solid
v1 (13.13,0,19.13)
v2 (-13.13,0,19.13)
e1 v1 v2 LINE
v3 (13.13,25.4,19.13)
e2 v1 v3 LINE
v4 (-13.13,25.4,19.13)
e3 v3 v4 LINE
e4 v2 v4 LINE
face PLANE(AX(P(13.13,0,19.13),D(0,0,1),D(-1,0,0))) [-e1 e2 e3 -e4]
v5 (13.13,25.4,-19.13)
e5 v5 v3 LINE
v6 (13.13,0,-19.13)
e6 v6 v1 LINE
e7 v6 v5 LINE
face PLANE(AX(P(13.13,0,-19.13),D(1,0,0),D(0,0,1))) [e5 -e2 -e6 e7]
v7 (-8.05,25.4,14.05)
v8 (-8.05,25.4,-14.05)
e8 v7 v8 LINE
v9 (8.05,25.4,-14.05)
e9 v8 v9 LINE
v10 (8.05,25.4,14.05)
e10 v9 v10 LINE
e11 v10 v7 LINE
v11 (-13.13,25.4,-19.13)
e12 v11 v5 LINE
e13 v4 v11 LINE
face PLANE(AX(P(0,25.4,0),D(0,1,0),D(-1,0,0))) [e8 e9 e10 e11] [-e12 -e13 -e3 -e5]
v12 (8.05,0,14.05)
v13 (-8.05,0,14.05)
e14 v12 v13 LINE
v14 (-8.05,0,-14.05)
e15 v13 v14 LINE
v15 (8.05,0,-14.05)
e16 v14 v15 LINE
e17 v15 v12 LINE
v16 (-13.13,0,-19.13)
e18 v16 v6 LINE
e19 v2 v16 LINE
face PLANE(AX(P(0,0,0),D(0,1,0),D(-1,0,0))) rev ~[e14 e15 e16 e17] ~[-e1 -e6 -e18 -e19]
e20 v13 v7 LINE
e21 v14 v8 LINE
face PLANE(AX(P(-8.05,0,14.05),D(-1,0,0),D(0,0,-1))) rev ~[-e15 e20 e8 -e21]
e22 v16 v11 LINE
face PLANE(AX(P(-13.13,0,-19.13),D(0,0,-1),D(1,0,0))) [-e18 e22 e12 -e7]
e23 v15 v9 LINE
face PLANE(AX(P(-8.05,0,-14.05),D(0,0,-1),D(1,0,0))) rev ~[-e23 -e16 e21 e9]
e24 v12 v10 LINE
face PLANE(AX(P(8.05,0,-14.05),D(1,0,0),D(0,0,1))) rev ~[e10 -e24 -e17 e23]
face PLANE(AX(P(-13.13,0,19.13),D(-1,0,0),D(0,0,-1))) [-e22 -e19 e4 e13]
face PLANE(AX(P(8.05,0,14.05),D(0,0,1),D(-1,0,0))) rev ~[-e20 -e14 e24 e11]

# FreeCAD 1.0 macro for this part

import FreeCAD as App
import Part
import Sketcher

V = App.Vector
Q = App.Units.Quantity


def add_polygon(sketch, points):
    """Adds a closed chain of lines whose ends are joined by coincident constraints."""
    first, n = sketch.GeometryCount, len(points)
    for a, b in zip(points, points[1:] + points[:1]):
        sketch.addGeometry(Part.LineSegment(App.Vector(*a, 0), App.Vector(*b, 0)), False)
    for i in range(n):
        sketch.addConstraint(Sketcher.Constraint("Coincident", first + i, 2, first + (i + 1) % n, 1))

doc = App.newDocument("Part")
body = doc.addObject("PartDesign::Body", "Body")

sketch1 = body.newObject("Sketcher::SketchObject", "Sketch")
sketch1.AttachmentSupport = (doc.getObject("XZ_Plane"), [""])
sketch1.MapMode = "FlatFace"
add_polygon(sketch1, [(13, -19), (-13, -19), (-13, 19), (13, 19)])
add_polygon(sketch1, [(-8, 14), (-8, -14), (8, -14), (8, 14)])
sketch1.addConstraint([
    Sketcher.Constraint("Horizontal", 0),
    Sketcher.Constraint("Vertical", 1),
    Sketcher.Constraint("Horizontal", 2),
    Sketcher.Constraint("Vertical", 3),
    Sketcher.Constraint("Vertical", 4),
    Sketcher.Constraint("Horizontal", 5),
    Sketcher.Constraint("Vertical", 6),
    Sketcher.Constraint("Horizontal", 7),
    Sketcher.Constraint("Symmetric", 0, 2, 2, 2, -1, 1),
    Sketcher.Constraint("Symmetric", 4, 2, 6, 2, -1, 1),
    Sketcher.Constraint("DistanceX", 5, 1, 5, 2, Q("16.1 mm")),
    Sketcher.Constraint("DistanceY", 4, 2, 4, 1, Q("28.1 mm")),
    Sketcher.Constraint("DistanceX", 0, 2, 4, 2, Q("5.08 mm")),
    Sketcher.Constraint("DistanceY", 0, 2, 4, 2, Q("5.08 mm")),
])
pad1 = body.newObject("PartDesign::Pad", "Pad")
pad1.Profile = sketch1
pad1.Length = 25.4
pad1.Reversed = True

doc.recompute()
